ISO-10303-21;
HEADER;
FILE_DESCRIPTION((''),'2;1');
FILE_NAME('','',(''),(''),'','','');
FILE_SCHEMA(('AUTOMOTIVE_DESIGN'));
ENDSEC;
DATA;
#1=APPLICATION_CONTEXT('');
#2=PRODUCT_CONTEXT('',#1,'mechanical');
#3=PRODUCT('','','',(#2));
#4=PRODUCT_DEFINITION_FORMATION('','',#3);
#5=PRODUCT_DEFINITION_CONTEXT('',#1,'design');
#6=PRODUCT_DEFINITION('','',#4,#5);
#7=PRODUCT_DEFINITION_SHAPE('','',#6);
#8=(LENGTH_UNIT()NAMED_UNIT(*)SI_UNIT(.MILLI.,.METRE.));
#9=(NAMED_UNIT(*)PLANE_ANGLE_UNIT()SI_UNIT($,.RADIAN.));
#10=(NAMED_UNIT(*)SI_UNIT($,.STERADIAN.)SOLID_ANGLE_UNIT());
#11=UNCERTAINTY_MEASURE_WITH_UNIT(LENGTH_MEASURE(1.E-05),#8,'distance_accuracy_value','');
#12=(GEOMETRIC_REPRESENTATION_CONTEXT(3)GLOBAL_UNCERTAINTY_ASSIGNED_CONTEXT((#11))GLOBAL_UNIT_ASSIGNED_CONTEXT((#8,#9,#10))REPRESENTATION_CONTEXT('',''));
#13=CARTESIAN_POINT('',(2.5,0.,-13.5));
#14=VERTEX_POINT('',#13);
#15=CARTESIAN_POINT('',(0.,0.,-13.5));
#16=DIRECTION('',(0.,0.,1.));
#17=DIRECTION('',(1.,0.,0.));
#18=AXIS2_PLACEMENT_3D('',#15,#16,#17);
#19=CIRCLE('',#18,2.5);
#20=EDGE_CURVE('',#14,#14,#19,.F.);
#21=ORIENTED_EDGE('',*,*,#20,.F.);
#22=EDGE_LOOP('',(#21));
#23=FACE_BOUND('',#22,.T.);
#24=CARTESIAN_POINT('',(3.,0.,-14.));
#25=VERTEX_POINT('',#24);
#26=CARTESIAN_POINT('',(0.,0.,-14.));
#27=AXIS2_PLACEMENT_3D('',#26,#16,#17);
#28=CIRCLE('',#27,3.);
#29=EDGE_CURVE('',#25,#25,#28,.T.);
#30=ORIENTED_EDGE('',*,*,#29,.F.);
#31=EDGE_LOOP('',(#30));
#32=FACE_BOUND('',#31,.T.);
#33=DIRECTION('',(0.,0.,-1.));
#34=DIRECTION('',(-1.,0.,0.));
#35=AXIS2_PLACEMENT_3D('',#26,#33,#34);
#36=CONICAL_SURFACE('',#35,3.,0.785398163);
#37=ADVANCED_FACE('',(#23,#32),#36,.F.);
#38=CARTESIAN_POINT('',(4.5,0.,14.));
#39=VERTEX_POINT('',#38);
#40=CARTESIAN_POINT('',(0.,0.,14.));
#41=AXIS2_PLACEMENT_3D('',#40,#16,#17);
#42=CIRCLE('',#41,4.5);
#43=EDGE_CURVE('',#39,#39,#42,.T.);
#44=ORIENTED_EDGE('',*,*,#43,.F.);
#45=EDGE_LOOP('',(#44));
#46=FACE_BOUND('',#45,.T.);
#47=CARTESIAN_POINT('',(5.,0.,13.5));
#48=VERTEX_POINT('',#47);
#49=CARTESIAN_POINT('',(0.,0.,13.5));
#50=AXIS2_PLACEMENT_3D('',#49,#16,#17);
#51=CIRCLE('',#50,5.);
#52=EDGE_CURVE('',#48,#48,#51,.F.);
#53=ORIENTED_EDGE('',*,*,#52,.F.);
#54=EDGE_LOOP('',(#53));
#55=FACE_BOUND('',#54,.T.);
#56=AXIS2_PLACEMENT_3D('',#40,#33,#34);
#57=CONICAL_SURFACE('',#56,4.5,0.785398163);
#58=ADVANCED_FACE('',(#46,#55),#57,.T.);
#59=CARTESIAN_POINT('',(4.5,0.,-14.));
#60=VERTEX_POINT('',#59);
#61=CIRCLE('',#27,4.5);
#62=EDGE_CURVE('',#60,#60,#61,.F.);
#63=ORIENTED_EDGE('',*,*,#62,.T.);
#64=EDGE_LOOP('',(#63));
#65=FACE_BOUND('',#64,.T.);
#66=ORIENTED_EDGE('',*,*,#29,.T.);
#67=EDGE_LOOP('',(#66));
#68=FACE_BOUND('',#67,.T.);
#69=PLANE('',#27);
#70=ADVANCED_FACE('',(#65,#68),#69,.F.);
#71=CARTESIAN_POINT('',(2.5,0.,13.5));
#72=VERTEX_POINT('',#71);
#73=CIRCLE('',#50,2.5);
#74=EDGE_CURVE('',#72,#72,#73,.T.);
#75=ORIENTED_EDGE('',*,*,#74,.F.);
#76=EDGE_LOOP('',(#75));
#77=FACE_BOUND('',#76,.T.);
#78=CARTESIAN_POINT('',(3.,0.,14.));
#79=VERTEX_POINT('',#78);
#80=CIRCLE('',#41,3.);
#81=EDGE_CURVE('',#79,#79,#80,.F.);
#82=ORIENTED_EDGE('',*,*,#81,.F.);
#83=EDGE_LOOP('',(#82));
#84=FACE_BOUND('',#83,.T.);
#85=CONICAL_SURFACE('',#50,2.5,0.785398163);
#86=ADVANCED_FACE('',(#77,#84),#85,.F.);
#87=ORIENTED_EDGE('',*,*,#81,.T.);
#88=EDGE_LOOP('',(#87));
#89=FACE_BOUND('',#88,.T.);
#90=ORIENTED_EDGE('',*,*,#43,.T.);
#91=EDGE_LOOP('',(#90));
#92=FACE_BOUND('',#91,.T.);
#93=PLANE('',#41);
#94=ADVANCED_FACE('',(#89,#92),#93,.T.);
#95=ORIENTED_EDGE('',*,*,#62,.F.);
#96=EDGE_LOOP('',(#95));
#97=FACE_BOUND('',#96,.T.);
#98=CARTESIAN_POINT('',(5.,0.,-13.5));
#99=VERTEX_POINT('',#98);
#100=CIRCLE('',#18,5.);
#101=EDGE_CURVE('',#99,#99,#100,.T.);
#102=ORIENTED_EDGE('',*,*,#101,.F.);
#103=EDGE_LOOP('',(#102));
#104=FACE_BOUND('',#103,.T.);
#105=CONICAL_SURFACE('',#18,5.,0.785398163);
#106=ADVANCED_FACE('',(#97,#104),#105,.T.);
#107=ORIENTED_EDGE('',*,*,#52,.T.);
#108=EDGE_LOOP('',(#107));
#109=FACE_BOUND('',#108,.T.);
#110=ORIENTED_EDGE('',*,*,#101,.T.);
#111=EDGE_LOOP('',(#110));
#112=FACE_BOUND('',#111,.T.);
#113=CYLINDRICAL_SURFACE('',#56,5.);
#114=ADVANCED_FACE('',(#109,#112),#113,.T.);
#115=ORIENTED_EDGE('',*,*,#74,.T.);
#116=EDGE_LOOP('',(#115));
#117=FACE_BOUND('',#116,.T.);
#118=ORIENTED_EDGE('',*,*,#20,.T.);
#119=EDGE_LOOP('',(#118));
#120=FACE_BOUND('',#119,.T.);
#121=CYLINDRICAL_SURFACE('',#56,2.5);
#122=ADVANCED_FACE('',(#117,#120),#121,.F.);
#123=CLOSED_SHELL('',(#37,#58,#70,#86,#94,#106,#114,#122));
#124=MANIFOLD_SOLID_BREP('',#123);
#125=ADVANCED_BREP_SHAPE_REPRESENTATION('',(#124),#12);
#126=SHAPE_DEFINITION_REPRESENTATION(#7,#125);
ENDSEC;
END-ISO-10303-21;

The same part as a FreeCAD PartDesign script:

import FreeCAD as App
import Part
import Sketcher

V = App.Vector


def edges_at(feature, points):
    """Names of the edges that pass closest to the given points."""
    edges = feature.Shape.Edges
    near = lambda p: min(range(len(edges)), key=lambda i: edges[i].distToShape(Part.Vertex(*p))[0])
    return sorted({f"Edge{near(p) + 1}" for p in points})

doc = App.newDocument("Part")
body = doc.addObject("PartDesign::Body", "Body")

sketch1 = doc.addObject("Sketcher::SketchObject", "Sketch")
body.addObject(sketch1)
sketch1.AttachmentSupport = (doc.XY_Plane, [""])
sketch1.MapMode = "FlatFace"
sketch1.addGeometry([
    Part.Circle(V(0, 0, 0), V(0, 0, 1), 5),
    Part.Circle(V(0, 0, 0), V(0, 0, 1), 2.5),
], False)
sketch1.addConstraint([
    Sketcher.Constraint("Coincident", 0, 3, -1, 1),
    Sketcher.Constraint("Coincident", 1, 3, -1, 1),
    Sketcher.Constraint("Diameter", 0, 10.0),
    Sketcher.Constraint("Diameter", 1, 5.0),
])
pad1 = doc.addObject("PartDesign::Pad", "Pad")
body.addObject(pad1)
pad1.Profile = sketch1
pad1.Length = 28
pad1.Midplane = True
doc.recompute()

chamfer = doc.addObject("PartDesign::Chamfer", "Chamfer")
body.addObject(chamfer)
chamfer.Base = (pad1, edges_at(pad1, [
    (-5, 0, -14),
    (-5, 0, 14),
    (-2.5, 0, -14),
    (-2.5, 0, 14),
]))
chamfer.Size = 0.5

doc.recompute()
